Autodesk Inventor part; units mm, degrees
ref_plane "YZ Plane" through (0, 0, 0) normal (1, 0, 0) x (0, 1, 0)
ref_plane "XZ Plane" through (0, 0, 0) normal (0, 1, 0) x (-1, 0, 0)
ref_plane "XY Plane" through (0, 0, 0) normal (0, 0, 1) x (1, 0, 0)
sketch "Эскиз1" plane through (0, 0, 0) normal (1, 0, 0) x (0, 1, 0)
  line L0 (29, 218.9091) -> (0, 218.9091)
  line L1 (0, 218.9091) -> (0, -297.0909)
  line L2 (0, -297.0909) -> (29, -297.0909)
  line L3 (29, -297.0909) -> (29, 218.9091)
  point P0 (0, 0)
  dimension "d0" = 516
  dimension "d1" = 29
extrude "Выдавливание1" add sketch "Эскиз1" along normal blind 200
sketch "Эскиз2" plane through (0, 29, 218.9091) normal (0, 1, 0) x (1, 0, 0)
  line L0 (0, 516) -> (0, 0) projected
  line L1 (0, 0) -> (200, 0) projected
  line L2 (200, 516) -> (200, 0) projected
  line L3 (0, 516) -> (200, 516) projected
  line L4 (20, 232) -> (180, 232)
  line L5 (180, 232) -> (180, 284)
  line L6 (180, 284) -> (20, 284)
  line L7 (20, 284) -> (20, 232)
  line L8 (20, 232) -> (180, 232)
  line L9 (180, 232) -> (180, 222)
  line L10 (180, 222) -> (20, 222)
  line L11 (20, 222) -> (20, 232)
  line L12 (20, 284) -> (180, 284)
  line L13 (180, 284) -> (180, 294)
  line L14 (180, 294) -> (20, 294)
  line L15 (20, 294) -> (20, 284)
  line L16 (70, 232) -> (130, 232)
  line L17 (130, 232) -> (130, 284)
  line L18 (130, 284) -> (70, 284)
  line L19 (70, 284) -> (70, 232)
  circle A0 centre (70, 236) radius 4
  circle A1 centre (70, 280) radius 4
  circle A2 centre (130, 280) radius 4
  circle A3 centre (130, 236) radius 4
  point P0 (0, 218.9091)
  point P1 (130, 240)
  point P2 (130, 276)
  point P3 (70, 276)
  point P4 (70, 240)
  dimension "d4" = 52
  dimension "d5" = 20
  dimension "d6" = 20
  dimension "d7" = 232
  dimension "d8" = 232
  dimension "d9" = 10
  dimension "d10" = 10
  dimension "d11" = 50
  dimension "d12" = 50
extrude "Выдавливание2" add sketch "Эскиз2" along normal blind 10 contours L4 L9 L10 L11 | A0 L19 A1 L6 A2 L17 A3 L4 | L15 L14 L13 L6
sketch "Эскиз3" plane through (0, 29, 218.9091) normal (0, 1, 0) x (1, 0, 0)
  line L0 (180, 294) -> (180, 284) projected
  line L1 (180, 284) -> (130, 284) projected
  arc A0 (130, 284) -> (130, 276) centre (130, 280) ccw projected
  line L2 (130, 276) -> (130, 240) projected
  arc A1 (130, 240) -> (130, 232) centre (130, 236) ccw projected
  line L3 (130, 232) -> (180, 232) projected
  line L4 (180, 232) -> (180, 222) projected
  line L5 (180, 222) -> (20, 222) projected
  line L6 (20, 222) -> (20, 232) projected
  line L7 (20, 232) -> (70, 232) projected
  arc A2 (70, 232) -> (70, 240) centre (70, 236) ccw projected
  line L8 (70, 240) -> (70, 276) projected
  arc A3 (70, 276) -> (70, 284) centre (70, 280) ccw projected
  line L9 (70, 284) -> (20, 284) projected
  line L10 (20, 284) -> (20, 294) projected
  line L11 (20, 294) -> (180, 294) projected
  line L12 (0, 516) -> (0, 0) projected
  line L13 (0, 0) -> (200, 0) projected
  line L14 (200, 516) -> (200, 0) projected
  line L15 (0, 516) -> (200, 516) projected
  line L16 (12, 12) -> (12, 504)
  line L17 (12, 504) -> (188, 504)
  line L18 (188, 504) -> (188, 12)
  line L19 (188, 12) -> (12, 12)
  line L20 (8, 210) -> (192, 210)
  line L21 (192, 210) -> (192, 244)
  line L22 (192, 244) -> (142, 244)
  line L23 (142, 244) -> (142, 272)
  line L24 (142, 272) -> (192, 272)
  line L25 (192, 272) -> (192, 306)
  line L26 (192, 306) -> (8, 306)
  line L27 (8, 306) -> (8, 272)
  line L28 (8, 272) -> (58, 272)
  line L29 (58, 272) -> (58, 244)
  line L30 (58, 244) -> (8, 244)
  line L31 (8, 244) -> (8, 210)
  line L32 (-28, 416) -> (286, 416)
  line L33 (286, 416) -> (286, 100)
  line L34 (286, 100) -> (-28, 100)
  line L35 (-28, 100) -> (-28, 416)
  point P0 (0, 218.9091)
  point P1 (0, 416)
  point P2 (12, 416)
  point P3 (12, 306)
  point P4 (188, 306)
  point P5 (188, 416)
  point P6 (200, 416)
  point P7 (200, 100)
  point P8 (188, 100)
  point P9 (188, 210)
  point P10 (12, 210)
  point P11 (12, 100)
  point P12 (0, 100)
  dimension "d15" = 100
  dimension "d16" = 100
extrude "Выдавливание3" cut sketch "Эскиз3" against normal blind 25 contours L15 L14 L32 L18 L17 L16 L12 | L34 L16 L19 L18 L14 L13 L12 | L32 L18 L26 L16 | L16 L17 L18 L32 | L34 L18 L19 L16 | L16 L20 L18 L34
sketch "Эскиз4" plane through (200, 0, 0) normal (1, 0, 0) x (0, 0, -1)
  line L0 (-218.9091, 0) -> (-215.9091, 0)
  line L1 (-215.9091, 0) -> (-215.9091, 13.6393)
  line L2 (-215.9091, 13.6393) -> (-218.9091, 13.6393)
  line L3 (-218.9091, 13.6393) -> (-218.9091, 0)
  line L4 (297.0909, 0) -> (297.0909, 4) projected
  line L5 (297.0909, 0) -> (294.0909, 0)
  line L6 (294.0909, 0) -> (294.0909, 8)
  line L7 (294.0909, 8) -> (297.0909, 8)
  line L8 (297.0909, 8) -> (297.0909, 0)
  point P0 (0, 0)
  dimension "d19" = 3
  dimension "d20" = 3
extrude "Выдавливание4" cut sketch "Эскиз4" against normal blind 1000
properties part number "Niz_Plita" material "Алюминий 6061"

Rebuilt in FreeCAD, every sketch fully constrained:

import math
import FreeCAD as App
import Part
import Sketcher
Q = App.Units.Quantity


def add_polygon(sketch, points):
    """Adds a closed chain of lines whose ends are joined by coincident constraints."""
    first, n = sketch.GeometryCount, len(points)
    for a, b in zip(points, points[1:] + points[:1]):
        sketch.addGeometry(Part.LineSegment(App.Vector(*a, 0), App.Vector(*b, 0)), False)
    for i in range(n):
        sketch.addConstraint(Sketcher.Constraint("Coincident", first + i, 2, first + (i + 1) % n, 1))

doc = App.newDocument("Part")
body = doc.addObject("PartDesign::Body", "Body")

# Sketch on YZ plane
sketch1 = body.newObject("Sketcher::SketchObject", "Sketch")
sketch1.AttachmentSupport = (doc.getObject("YZ_Plane"), [""])
sketch1.MapMode = "FlatFace"
add_polygon(sketch1, [(29, -297.0909), (29, 218.9091), (0, 218.9091), (0, -297.0909)])  # lines 0-3
sketch1.addConstraint([
    Sketcher.Constraint("Vertical", 0),
    Sketcher.Constraint("Horizontal", 1),
    Sketcher.Constraint("Vertical", 2),
    Sketcher.Constraint("Horizontal", 3),
    Sketcher.Constraint("PointOnObject", 1, 2, -2),
    Sketcher.Constraint("DistanceX", 1, 2, 1, 1, Q("29 mm")),
    Sketcher.Constraint("DistanceY", 0, 1, 0, 2, Q("516 mm")),
    Sketcher.Constraint("DistanceY", -1, 1, 0, 2, Q("218.909 mm")),
])
pad1 = body.newObject("PartDesign::Pad", "Pad")
pad1.Profile = sketch1
pad1.Length = 200

# Sketch on XZ plane
sketch2 = body.newObject("Sketcher::SketchObject", "Sketch001")
sketch2.AttachmentSupport = (doc.getObject("XZ_Plane"), [""])
sketch2.MapMode = "FlatFace"
sketch2.AttachmentOffset = App.Placement(App.Vector(0, 0, -29), App.Rotation())
sketch2.addGeometry([
    Part.LineSegment(App.Vector(70, -13.0909, 0), App.Vector(20, -13.0909, 0)),  # 0
    Part.LineSegment(App.Vector(20, -13.0909, 0), App.Vector(20, -3.0909, 0)),  # 1
    Part.LineSegment(App.Vector(20, -3.0909, 0), App.Vector(180, -3.0909, 0)),  # 2
    Part.LineSegment(App.Vector(180, -3.0909, 0), App.Vector(180, -13.0909, 0)),  # 3
    Part.LineSegment(App.Vector(180, -13.0909, 0), App.Vector(130, -13.0909, 0)),  # 4
    Part.ArcOfCircle(Part.Circle(App.Vector(130, -17.0909, 0), App.Vector(0, 0, 1), 4), math.radians(90), math.radians(270)),  # 5
    Part.LineSegment(App.Vector(130, -21.0909, 0), App.Vector(130, -57.0909, 0)),  # 6
    Part.ArcOfCircle(Part.Circle(App.Vector(130, -61.0909, 0), App.Vector(0, 0, 1), 4), math.radians(90), math.radians(270)),  # 7
    Part.LineSegment(App.Vector(130, -65.0909, 0), App.Vector(180, -65.0909, 0)),  # 8
    Part.LineSegment(App.Vector(180, -65.0909, 0), App.Vector(180, -75.0909, 0)),  # 9
    Part.LineSegment(App.Vector(180, -75.0909, 0), App.Vector(20, -75.0909, 0)),  # 10
    Part.LineSegment(App.Vector(20, -75.0909, 0), App.Vector(20, -65.0909, 0)),  # 11
    Part.LineSegment(App.Vector(20, -65.0909, 0), App.Vector(70, -65.0909, 0)),  # 12
    Part.ArcOfCircle(Part.Circle(App.Vector(70, -61.0909, 0), App.Vector(0, 0, 1), 4), math.radians(-90), math.radians(90)),  # 13
    Part.LineSegment(App.Vector(70, -57.0909, 0), App.Vector(70, -21.0909, 0)),  # 14
    Part.ArcOfCircle(Part.Circle(App.Vector(70, -17.0909, 0), App.Vector(0, 0, 1), 4), math.radians(-90), math.radians(90)),  # 15
], False)
sketch2.addConstraint([
    Sketcher.Constraint("Coincident", 0, 2, 1, 1),
    Sketcher.Constraint("Coincident", 1, 2, 2, 1),
    Sketcher.Constraint("Coincident", 2, 2, 3, 1),
    Sketcher.Constraint("Coincident", 3, 2, 4, 1),
    Sketcher.Constraint("Tangent", 4, 2, 5, 1),
    Sketcher.Constraint("Coincident", 5, 2, 6, 1),
    Sketcher.Constraint("Coincident", 6, 2, 7, 1),
    Sketcher.Constraint("Tangent", 7, 2, 8, 1),
    Sketcher.Constraint("Coincident", 8, 2, 9, 1),
    Sketcher.Constraint("Coincident", 9, 2, 10, 1),
    Sketcher.Constraint("Coincident", 10, 2, 11, 1),
    Sketcher.Constraint("Coincident", 11, 2, 12, 1),
    Sketcher.Constraint("Tangent", 12, 2, 13, 1),
    Sketcher.Constraint("Coincident", 13, 2, 14, 1),
    Sketcher.Constraint("Coincident", 14, 2, 15, 1),
    Sketcher.Constraint("Tangent", 15, 2, 0, 1),
    Sketcher.Constraint("Horizontal", 0),
    Sketcher.Constraint("Vertical", 1),
    Sketcher.Constraint("Horizontal", 2),
    Sketcher.Constraint("Vertical", 3),
    Sketcher.Constraint("Horizontal", 4),
    Sketcher.Constraint("Vertical", 6),
    Sketcher.Constraint("Horizontal", 8),
    Sketcher.Constraint("Vertical", 9),
    Sketcher.Constraint("Horizontal", 10),
    Sketcher.Constraint("Vertical", 11),
    Sketcher.Constraint("Horizontal", 12),
    Sketcher.Constraint("Vertical", 14),
    Sketcher.Constraint("Equal", 5, 7),
    Sketcher.Constraint("Equal", 7, 13),
    Sketcher.Constraint("Equal", 13, 15),
    Sketcher.Constraint("Horizontal", 7, 3, 13, 3),
    Sketcher.Constraint("Horizontal", 5, 3, 15, 3),
    Sketcher.Constraint("Vertical", 5, 3, 7, 3),
    Sketcher.Constraint("Vertical", 13, 3, 15, 3),
    Sketcher.Constraint("Vertical", 4, 2, 5, 2),
    Sketcher.Constraint("Vertical", 3, 2, 8, 2),
    Sketcher.Constraint("Vertical", 1, 2, 10, 2),
    Sketcher.Constraint("Vertical", 12, 2, 13, 2),
    Sketcher.Constraint("Equal", 0, 4),
    Sketcher.Constraint("Equal", 3, 9),
    Sketcher.Constraint("DistanceX", 0, 2, 0, 1, Q("50 mm")),
    Sketcher.Constraint("DistanceY", 1, 1, 1, 2, Q("10 mm")),
    Sketcher.Constraint("DistanceX", -1, 1, 0, 2, Q("20 mm")),
    Sketcher.Constraint("Radius", 5, Q("4 mm")),
    Sketcher.Constraint("DistanceY", 7, 2, 4, 2, Q("52 mm")),
    Sketcher.Constraint("DistanceX", 2, 1, 2, 2, Q("160 mm")),
    Sketcher.Constraint("DistanceY", 5, 3, -1, 1, Q("17.091 mm")),
])
pad2 = body.newObject("PartDesign::Pad", "Pad001")
pad2.Profile = sketch2
pad2.Length = 10
pad2.Reversed = True

# Sketch on XZ plane
sketch3 = body.newObject("Sketcher::SketchObject", "Sketch002")
sketch3.AttachmentSupport = (doc.getObject("XZ_Plane"), [""])
sketch3.MapMode = "FlatFace"
sketch3.AttachmentOffset = App.Placement(App.Vector(0, 0, -29), App.Rotation())
add_polygon(sketch3, [(200, -297.0909), (0, -297.0909), (0, -197.0909), (12, -197.0909), (12, -87.0909), (188, -87.0909), (188, -197.0909), (200, -197.0909)])  # lines 0-7
add_polygon(sketch3, [(12, 118.9091), (0, 118.9091), (0, 218.9091), (200, 218.9091), (200, 118.9091), (188, 118.9091), (188, 8.9091), (12, 8.9091)])  # lines 8-15
sketch3.addConstraint([
    Sketcher.Constraint("Horizontal", 0),
    Sketcher.Constraint("Vertical", 1),
    Sketcher.Constraint("Horizontal", 2),
    Sketcher.Constraint("Vertical", 3),
    Sketcher.Constraint("Horizontal", 4),
    Sketcher.Constraint("Vertical", 5),
    Sketcher.Constraint("Horizontal", 6),
    Sketcher.Constraint("Vertical", 7),
    Sketcher.Constraint("Horizontal", 8),
    Sketcher.Constraint("Vertical", 9),
    Sketcher.Constraint("Horizontal", 10),
    Sketcher.Constraint("Vertical", 11),
    Sketcher.Constraint("Horizontal", 12),
    Sketcher.Constraint("Vertical", 13),
    Sketcher.Constraint("Horizontal", 14),
    Sketcher.Constraint("Vertical", 15),
    Sketcher.Constraint("PointOnObject", 0, 2, -2),
    Sketcher.Constraint("PointOnObject", 8, 2, -2),
    Sketcher.Constraint("Horizontal", 2, 2, 5, 2),
    Sketcher.Constraint("Horizontal", 8, 2, 11, 2),
    Sketcher.Constraint("Vertical", 7, 2, 10, 2),
    Sketcher.Constraint("Vertical", 5, 2, 12, 2),
    Sketcher.Constraint("Vertical", 3, 2, 14, 2),
    Sketcher.Constraint("Equal", 2, 6),
    Sketcher.Constraint("Equal", 7, 9),
    Sketcher.Constraint("Equal", 5, 13),
    Sketcher.Constraint("DistanceY", 1, 1, 1, 2, Q("100 mm")),
    Sketcher.Constraint("DistanceX", 0, 2, 0, 1, Q("200 mm")),
    Sketcher.Constraint("DistanceX", 2, 1, 2, 2, Q("12 mm")),
    Sketcher.Constraint("DistanceY", 3, 1, 3, 2, Q("110 mm")),
    Sketcher.Constraint("DistanceY", 3, 2, 8, 2, Q("206 mm")),
    Sketcher.Constraint("DistanceY", 0, 2, -1, 1, Q("297.091 mm")),
])
pocket1 = body.newObject("PartDesign::Pocket", "Pocket")
pocket1.Profile = sketch3
pocket1.Length = 25
pocket1.Reversed = True

# Sketch on YZ plane
sketch4 = body.newObject("Sketcher::SketchObject", "Sketch003")
sketch4.AttachmentSupport = (doc.getObject("YZ_Plane"), [""])
sketch4.MapMode = "FlatFace"
sketch4.AttachmentOffset = App.Placement(App.Vector(0, 0, 200), App.Rotation())
add_polygon(sketch4, [(13.6393, 218.9091), (0, 218.9091), (0, 215.9091), (13.6393, 215.9091)])  # lines 0-3
add_polygon(sketch4, [(0, -294.0909), (0, -297.0909), (8, -297.0909), (8, -294.0909)])  # lines 4-7
sketch4.addConstraint([
    Sketcher.Constraint("Horizontal", 0),
    Sketcher.Constraint("Vertical", 1),
    Sketcher.Constraint("Horizontal", 2),
    Sketcher.Constraint("Vertical", 3),
    Sketcher.Constraint("Vertical", 4),
    Sketcher.Constraint("Horizontal", 5),
    Sketcher.Constraint("Vertical", 6),
    Sketcher.Constraint("Horizontal", 7),
    Sketcher.Constraint("PointOnObject", 0, 2, -2),
    Sketcher.Constraint("PointOnObject", 4, 2, -2),
    Sketcher.Constraint("Equal", 3, 4),
    Sketcher.Constraint("DistanceY", 1, 2, 1, 1, Q("3 mm")),
    Sketcher.Constraint("DistanceX", 5, 1, 5, 2, Q("8 mm")),
    Sketcher.Constraint("DistanceY", 4, 2, 1, 2, Q("513 mm")),
    Sketcher.Constraint("DistanceX", 0, 2, 0, 1, Q("13.6393 mm")),
    Sketcher.Constraint("DistanceY", -1, 1, 0, 2, Q("218.909 mm")),
])
pocket2 = body.newObject("PartDesign::Pocket", "Pocket001")
pocket2.Profile = sketch4
pocket2.Length = 1000

doc.recompute()
